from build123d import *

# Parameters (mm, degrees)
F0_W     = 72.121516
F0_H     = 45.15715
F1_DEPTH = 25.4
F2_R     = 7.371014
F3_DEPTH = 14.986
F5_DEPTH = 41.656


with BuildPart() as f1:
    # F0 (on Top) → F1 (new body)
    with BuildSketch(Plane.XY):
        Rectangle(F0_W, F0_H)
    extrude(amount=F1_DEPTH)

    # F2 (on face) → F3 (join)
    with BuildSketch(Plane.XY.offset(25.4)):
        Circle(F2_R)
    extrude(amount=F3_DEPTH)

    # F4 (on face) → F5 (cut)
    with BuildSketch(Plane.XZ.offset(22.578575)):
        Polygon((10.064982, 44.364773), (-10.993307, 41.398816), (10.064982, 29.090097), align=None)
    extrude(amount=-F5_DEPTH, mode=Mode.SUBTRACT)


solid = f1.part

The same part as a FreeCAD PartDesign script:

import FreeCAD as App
import Part
import Sketcher

V = App.Vector
Q = App.Units.Quantity


def add_polygon(sketch, points):
    """Adds a closed chain of lines whose ends are joined by coincident constraints."""
    first, n = sketch.GeometryCount, len(points)
    for a, b in zip(points, points[1:] + points[:1]):
        sketch.addGeometry(Part.LineSegment(App.Vector(*a, 0), App.Vector(*b, 0)), False)
    for i in range(n):
        sketch.addConstraint(Sketcher.Constraint("Coincident", first + i, 2, first + (i + 1) % n, 1))

doc = App.newDocument("Part")
body = doc.addObject("PartDesign::Body", "Body")

# Sketch on XY plane
sketch1 = doc.addObject("Sketcher::SketchObject", "Sketch")
body.addObject(sketch1)
sketch1.AttachmentSupport = (doc.XY_Plane, [""])
sketch1.MapMode = "FlatFace"
add_polygon(sketch1, [(-36, 23), (-36, -23), (36, -23), (36, 23)])  # lines 0-3
sketch1.addConstraint(Sketcher.Constraint("Vertical", 0))
sketch1.addConstraint(Sketcher.Constraint("Horizontal", 1))
sketch1.addConstraint(Sketcher.Constraint("Vertical", 2))
sketch1.addConstraint(Sketcher.Constraint("Horizontal", 3))
sketch1.addConstraint(Sketcher.Constraint("Symmetric", 0, 2, 2, 2, -1, 1))
sketch1.addConstraint(Sketcher.Constraint("DistanceY", 0, 2, 0, 1, 45.15715))
sketch1.addConstraint(Sketcher.Constraint("DistanceX", 1, 1, 1, 2, 72.121516))
pad1 = doc.addObject("PartDesign::Pad", "Pad")
body.addObject(pad1)
pad1.Profile = sketch1
pad1.Length = Q("1 in")

# Sketch on XY plane
sketch2 = doc.addObject("Sketcher::SketchObject", "Sketch001")
body.addObject(sketch2)
sketch2.AttachmentSupport = (doc.XY_Plane, [""])
sketch2.MapMode = "FlatFace"
sketch2.AttachmentOffset = App.Placement(V(0, 0, 1 * 25.4), App.Rotation())
sketch2.addGeometry(Part.Circle(V(0, 0, 0), V(0, 0, 1), 7), False)
sketch2.addConstraint(Sketcher.Constraint("Coincident", 0, 3, -1, 1))
sketch2.addConstraint(Sketcher.Constraint("Diameter", 0, 14.742028))
pad2 = doc.addObject("PartDesign::Pad", "Pad001")
body.addObject(pad2)
pad2.Profile = sketch2
pad2.Length = Q("0.59 in")

# Sketch on XZ plane
sketch3 = doc.addObject("Sketcher::SketchObject", "Sketch002")
body.addObject(sketch3)
sketch3.AttachmentSupport = (doc.XZ_Plane, [""])
sketch3.MapMode = "FlatFace"
sketch3.AttachmentOffset = App.Placement(V(0, 0, 22.578575), App.Rotation())
add_polygon(sketch3, [(10, 44), (-11, 41), (10, 29)])  # lines 0-2
sketch3.addConstraint(Sketcher.Constraint("Vertical", 2))
sketch3.addConstraint(Sketcher.Constraint("Distance", 1, 24.391722))
sketch3.addConstraint(Sketcher.Constraint("DistanceY", 2, 1, 2, 2, 15.274676))
sketch3.addConstraint(Sketcher.Constraint("DistanceX", 0, 2, 1, 2, 21.058289))
sketch3.addConstraint(Sketcher.Constraint("DistanceX", 0, 2, -1, 1, 10.993307))
sketch3.addConstraint(Sketcher.Constraint("DistanceY", -1, 1, 0, 2, 41.398816))
pocket1 = doc.addObject("PartDesign::Pocket", "Pocket")
body.addObject(pocket1)
pocket1.Profile = sketch3
pocket1.Length = Q("1.64 in")

doc.recompute()
